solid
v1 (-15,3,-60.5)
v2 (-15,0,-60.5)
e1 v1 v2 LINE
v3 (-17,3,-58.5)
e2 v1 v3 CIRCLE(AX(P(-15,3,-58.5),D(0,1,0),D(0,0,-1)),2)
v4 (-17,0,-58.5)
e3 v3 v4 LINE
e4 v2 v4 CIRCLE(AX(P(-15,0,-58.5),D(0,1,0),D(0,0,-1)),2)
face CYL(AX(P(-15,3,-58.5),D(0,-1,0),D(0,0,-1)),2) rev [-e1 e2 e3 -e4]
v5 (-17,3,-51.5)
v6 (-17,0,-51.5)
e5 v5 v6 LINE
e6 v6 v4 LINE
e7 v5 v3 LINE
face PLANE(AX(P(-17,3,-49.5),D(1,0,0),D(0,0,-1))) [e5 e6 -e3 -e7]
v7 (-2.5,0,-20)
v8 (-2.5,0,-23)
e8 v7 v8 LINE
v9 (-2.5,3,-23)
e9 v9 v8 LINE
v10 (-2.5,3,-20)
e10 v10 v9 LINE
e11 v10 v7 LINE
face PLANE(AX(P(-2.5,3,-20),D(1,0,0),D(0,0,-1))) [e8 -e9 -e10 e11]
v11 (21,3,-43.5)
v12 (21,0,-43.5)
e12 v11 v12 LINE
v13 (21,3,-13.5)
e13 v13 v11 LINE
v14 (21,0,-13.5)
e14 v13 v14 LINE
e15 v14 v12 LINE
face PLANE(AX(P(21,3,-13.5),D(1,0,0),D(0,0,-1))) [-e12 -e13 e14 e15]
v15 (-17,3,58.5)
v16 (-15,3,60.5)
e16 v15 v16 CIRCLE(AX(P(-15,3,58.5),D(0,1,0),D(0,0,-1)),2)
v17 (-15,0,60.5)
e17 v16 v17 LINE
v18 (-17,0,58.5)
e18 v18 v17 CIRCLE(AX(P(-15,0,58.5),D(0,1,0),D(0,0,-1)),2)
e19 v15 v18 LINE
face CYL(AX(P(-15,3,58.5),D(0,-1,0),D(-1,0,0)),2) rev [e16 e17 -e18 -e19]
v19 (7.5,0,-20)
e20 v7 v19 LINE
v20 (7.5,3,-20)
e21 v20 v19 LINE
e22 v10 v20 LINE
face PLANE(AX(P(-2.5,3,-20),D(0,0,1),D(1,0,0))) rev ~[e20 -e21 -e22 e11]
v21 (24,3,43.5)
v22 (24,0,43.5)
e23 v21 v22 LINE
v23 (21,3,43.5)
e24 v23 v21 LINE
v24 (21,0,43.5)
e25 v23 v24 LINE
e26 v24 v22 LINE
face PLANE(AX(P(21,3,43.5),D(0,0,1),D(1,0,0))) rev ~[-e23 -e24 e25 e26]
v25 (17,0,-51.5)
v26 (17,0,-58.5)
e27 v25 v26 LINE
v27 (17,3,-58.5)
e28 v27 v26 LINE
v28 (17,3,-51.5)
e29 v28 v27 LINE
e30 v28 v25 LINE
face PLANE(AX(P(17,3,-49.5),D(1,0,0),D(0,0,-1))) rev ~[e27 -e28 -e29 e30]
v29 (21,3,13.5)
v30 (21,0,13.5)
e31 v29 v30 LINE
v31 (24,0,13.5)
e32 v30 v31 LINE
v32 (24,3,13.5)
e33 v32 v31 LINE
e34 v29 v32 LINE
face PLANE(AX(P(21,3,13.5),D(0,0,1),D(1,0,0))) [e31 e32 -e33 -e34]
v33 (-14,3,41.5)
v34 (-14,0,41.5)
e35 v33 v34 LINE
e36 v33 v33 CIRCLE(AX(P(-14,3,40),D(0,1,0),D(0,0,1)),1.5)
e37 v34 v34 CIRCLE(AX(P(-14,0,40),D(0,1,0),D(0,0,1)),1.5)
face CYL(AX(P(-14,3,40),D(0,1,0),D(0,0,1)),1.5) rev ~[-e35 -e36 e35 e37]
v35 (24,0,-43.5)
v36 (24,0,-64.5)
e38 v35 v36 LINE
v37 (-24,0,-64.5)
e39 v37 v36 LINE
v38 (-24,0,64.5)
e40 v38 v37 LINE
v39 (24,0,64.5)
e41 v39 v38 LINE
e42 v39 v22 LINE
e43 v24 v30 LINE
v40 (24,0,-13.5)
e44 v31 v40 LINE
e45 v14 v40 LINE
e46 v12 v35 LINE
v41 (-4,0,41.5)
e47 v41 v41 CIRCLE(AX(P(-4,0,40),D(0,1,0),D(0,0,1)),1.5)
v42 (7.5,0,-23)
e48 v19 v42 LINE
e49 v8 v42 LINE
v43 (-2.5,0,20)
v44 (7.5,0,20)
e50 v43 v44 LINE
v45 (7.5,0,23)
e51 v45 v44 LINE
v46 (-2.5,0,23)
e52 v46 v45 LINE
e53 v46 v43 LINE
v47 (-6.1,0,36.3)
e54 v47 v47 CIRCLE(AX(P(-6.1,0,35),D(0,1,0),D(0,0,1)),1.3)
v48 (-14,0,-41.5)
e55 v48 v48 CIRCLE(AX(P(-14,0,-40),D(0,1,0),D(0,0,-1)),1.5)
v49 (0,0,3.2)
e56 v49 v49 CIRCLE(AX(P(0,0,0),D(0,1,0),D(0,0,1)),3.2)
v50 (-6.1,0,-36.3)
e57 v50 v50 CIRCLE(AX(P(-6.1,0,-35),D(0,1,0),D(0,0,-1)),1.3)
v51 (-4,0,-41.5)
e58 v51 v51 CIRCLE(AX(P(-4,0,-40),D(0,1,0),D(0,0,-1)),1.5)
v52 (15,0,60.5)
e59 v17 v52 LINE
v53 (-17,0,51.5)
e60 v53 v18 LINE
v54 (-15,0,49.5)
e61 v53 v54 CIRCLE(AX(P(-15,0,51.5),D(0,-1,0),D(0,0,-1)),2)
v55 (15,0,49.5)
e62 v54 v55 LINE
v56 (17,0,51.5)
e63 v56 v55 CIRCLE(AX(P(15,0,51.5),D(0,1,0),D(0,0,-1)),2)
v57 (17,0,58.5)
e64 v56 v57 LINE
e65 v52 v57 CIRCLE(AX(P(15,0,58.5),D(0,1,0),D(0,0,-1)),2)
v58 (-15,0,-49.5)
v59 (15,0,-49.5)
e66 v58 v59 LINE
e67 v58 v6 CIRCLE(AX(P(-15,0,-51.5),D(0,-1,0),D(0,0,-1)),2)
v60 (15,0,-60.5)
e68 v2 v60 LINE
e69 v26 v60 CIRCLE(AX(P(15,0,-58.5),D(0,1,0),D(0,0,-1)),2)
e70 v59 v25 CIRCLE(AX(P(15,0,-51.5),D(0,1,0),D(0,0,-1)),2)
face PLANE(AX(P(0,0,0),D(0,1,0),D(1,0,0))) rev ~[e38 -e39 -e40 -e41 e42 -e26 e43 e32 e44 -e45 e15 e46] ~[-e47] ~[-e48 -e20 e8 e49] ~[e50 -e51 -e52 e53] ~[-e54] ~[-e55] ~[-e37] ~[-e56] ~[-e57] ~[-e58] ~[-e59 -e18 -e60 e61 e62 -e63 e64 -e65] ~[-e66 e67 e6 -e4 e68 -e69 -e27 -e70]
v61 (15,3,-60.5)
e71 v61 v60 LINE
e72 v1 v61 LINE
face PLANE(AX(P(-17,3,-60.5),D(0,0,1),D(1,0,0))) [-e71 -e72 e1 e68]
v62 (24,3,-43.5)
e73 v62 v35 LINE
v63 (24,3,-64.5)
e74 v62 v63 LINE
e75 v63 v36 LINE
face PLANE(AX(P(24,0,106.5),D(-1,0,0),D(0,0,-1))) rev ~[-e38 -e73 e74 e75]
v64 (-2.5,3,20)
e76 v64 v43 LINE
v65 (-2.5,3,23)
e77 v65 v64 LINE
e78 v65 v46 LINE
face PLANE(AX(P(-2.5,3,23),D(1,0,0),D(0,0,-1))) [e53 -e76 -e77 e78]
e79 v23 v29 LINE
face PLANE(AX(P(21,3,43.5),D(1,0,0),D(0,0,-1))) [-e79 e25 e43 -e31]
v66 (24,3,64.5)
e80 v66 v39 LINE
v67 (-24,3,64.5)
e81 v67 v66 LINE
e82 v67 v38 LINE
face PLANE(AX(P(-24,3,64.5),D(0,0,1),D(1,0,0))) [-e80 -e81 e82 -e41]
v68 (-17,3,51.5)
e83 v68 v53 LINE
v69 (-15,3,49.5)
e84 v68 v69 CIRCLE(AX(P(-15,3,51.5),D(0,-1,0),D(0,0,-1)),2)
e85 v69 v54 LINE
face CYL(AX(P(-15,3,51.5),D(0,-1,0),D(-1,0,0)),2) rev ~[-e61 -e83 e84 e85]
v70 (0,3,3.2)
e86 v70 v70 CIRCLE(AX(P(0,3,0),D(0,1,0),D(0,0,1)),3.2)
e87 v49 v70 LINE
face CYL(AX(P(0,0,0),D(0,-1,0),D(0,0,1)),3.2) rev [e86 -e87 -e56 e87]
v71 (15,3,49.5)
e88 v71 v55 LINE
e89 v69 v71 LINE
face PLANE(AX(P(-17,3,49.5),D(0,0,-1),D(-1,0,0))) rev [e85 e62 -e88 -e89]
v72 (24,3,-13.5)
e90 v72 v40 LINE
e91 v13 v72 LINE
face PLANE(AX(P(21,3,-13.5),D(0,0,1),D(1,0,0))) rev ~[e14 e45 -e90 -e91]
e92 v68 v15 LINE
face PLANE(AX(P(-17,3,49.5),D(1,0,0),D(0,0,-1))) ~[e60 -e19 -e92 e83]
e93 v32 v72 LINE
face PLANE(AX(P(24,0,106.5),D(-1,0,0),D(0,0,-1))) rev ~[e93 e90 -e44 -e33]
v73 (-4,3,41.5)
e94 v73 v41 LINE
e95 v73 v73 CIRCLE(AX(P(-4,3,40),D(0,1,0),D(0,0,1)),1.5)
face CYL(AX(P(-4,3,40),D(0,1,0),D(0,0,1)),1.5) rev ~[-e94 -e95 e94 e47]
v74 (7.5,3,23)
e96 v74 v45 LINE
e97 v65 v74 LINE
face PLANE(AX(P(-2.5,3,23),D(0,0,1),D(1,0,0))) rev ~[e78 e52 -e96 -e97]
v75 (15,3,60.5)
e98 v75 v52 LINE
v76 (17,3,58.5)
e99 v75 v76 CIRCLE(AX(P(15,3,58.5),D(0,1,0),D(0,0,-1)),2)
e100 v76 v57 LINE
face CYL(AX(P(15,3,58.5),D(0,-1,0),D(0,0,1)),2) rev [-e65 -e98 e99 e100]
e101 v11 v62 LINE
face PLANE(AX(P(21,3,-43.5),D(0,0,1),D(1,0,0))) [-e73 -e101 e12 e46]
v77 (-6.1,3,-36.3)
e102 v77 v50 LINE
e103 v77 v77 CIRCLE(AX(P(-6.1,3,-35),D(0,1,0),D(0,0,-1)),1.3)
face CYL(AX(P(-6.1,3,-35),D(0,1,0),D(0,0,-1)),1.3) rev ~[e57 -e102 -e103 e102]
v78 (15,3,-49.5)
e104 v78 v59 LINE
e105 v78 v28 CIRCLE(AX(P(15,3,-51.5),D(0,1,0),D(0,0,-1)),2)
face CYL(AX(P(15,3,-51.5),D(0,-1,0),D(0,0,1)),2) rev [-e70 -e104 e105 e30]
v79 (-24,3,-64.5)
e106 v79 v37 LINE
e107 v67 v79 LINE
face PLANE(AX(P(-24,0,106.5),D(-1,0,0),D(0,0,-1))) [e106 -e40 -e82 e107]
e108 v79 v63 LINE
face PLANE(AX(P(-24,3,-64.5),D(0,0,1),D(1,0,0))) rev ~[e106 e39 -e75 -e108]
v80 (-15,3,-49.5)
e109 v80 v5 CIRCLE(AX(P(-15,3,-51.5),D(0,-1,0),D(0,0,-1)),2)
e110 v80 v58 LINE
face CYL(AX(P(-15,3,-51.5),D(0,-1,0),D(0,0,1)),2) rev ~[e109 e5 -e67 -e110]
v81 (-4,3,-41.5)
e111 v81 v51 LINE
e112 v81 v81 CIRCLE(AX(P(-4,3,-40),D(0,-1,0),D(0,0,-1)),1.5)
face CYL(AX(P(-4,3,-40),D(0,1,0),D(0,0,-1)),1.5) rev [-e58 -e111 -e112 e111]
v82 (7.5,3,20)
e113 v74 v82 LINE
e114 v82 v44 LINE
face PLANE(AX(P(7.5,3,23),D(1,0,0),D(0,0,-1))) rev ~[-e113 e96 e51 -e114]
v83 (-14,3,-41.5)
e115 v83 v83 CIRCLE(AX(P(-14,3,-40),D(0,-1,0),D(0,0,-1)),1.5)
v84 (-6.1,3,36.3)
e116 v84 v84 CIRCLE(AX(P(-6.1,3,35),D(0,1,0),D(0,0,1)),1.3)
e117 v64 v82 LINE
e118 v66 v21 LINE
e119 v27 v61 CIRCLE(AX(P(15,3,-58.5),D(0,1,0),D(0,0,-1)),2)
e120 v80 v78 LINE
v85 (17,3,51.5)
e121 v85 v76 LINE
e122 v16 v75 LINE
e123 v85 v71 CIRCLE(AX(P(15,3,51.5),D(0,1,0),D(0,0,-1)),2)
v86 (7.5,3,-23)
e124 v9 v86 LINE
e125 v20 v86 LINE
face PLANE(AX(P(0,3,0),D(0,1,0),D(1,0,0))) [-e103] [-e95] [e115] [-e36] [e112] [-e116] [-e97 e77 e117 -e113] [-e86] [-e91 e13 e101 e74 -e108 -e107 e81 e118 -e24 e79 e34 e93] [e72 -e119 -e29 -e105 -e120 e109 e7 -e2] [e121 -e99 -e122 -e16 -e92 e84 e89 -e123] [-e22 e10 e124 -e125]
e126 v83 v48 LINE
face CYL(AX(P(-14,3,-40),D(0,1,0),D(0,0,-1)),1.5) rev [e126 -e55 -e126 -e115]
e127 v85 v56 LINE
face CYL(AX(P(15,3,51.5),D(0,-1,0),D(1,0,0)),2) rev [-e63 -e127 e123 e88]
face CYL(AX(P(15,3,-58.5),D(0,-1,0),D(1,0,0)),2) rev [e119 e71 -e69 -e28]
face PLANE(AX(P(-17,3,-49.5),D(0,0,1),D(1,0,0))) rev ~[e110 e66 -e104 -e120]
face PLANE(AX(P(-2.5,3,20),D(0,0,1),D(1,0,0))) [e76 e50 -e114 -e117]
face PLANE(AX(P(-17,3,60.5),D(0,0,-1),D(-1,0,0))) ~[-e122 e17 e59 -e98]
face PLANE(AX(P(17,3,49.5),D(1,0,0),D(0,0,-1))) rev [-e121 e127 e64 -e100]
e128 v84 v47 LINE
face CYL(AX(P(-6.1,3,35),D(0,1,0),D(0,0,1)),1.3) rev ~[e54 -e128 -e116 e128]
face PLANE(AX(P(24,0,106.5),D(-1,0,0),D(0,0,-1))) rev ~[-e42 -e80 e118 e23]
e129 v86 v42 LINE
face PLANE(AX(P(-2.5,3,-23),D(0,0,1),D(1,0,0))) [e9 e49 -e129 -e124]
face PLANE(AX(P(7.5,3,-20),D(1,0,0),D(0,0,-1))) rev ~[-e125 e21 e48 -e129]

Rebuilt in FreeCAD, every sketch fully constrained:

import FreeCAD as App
import Part
import Sketcher
from FreeCAD import Vector
Q = App.Units.Quantity


def edges_at(feature, points):
    """Names of the edges that pass closest to the given points."""
    edges = feature.Shape.Edges
    near = lambda p: min(range(len(edges)), key=lambda i: edges[i].distToShape(Part.Vertex(*p))[0])
    return sorted({f"Edge{near(p) + 1}" for p in points})


def add_polygon(sketch, points):
    """Adds a closed chain of lines whose ends are joined by coincident constraints."""
    first, n = sketch.GeometryCount, len(points)
    for a, b in zip(points, points[1:] + points[:1]):
        sketch.addGeometry(Part.LineSegment(App.Vector(*a, 0), App.Vector(*b, 0)), False)
    for i in range(n):
        sketch.addConstraint(Sketcher.Constraint("Coincident", first + i, 2, first + (i + 1) % n, 1))

doc = App.newDocument("Part")
body = doc.addObject("PartDesign::Body", "Body")

# Sketch on XZ plane
sketch1 = body.newObject("Sketcher::SketchObject", "Sketch")
sketch1.AttachmentSupport = (doc.getObject("XZ_Plane"), [""])
sketch1.MapMode = "FlatFace"
add_polygon(sketch1, [(-24, -106.5), (-24, 106.5), (24, 106.5), (24, -106.5)])  # lines 0-3
sketch1.addGeometry(Part.Circle(Vector(0, 0, 0), Vector(0, 0, 1), 3.2), False)  # 4
sketch1.addConstraint([
    Sketcher.Constraint("Vertical", 0),
    Sketcher.Constraint("Horizontal", 1),
    Sketcher.Constraint("Vertical", 2),
    Sketcher.Constraint("Horizontal", 3),
    Sketcher.Constraint("Coincident", 4, 3, -1, 1),
    Sketcher.Constraint("Symmetric", 0, 2, 2, 2, -1, 1),
    Sketcher.Constraint("Diameter", 4, Q("6.4 mm")),
    Sketcher.Constraint("DistanceX", 1, 1, 1, 2, Q("48 mm")),
    Sketcher.Constraint("DistanceY", 0, 1, 0, 2, Q("213 mm")),
])
pad1 = body.newObject("PartDesign::Pad", "Pad")
pad1.Profile = sketch1
pad1.Length = 3
pad1.Reversed = True

# Sketch on XZ plane
sketch2 = body.newObject("Sketcher::SketchObject", "Sketch001")
sketch2.AttachmentSupport = (doc.getObject("XZ_Plane"), [""])
sketch2.MapMode = "FlatFace"
sketch2.AttachmentOffset = App.Placement(Vector(0, 0, -3), App.Rotation())
add_polygon(sketch2, [(21, -85.5), (21, -64.5), (24, -64.5), (24, -85.5)])  # lines 0-3
add_polygon(sketch2, [(21, -43.5), (21, -13.5), (24, -13.5), (24, -43.5)])  # lines 4-7
add_polygon(sketch2, [(21, 13.5), (21, 43.5), (24, 43.5), (24, 13.5)])  # lines 8-11
add_polygon(sketch2, [(21, 64.5), (21, 85.5), (24, 85.5), (24, 64.5)])  # lines 12-15
sketch2.addConstraint([
    Sketcher.Constraint("Vertical", 0),
    Sketcher.Constraint("Horizontal", 1),
    Sketcher.Constraint("Vertical", 2),
    Sketcher.Constraint("Horizontal", 3),
    Sketcher.Constraint("Vertical", 4),
    Sketcher.Constraint("Horizontal", 5),
    Sketcher.Constraint("Vertical", 6),
    Sketcher.Constraint("Horizontal", 7),
    Sketcher.Constraint("Vertical", 8),
    Sketcher.Constraint("Horizontal", 9),
    Sketcher.Constraint("Vertical", 10),
    Sketcher.Constraint("Horizontal", 11),
    Sketcher.Constraint("Vertical", 12),
    Sketcher.Constraint("Horizontal", 13),
    Sketcher.Constraint("Vertical", 14),
    Sketcher.Constraint("Horizontal", 15),
    Sketcher.Constraint("Symmetric", 7, 2, 8, 2, -1),
    Sketcher.Constraint("Symmetric", 5, 2, 10, 2, -1),
    Sketcher.Constraint("Symmetric", 3, 2, 12, 2, -1),
    Sketcher.Constraint("Symmetric", 1, 2, 14, 2, -1),
    Sketcher.Constraint("Vertical", 3, 2, 4, 2),
    Sketcher.Constraint("Vertical", 2, 2, 5, 2),
    Sketcher.Constraint("DistanceX", 1, 1, 1, 2, Q("3 mm")),
    Sketcher.Constraint("DistanceY", 0, 1, 0, 2, Q("21 mm")),
    Sketcher.Constraint("DistanceY", 4, 1, 4, 2, Q("30 mm")),
    Sketcher.Constraint("DistanceX", -1, 1, 0, 2, Q("21 mm")),
    Sketcher.Constraint("DistanceY", 0, 2, 4, 2, Q("51 mm")),
    Sketcher.Constraint("DistanceY", 4, 2, 8, 2, Q("57 mm")),
])
pocket1 = body.newObject("PartDesign::Pocket", "Pocket")
pocket1.Profile = sketch2
pocket1.Type = "ThroughAll"
pocket1.Reversed = True

# Sketch on XZ plane
sketch3 = body.newObject("Sketcher::SketchObject", "Sketch002")
sketch3.AttachmentSupport = (doc.getObject("XZ_Plane"), [""])
sketch3.MapMode = "FlatFace"
sketch3.AttachmentOffset = App.Placement(Vector(0, 0, -3), App.Rotation())
add_polygon(sketch3, [(-2.5, 20), (-2.5, 23), (7.5, 23), (7.5, 20)])  # lines 0-3
add_polygon(sketch3, [(-2.5, -23), (-2.5, -20), (7.5, -20), (7.5, -23)])  # lines 4-7
sketch3.addConstraint([
    Sketcher.Constraint("Vertical", 0),
    Sketcher.Constraint("Horizontal", 1),
    Sketcher.Constraint("Vertical", 2),
    Sketcher.Constraint("Horizontal", 3),
    Sketcher.Constraint("Vertical", 4),
    Sketcher.Constraint("Horizontal", 5),
    Sketcher.Constraint("Vertical", 6),
    Sketcher.Constraint("Horizontal", 7),
    Sketcher.Constraint("Symmetric", 3, 2, 4, 2, -1),
    Sketcher.Constraint("Symmetric", 1, 2, 6, 2, -1),
    Sketcher.Constraint("DistanceX", 1, 1, 1, 2, Q("10 mm")),
    Sketcher.Constraint("DistanceY", 0, 1, 0, 2, Q("3 mm")),
    Sketcher.Constraint("DistanceY", -1, 1, 0, 2, Q("23 mm")),
    Sketcher.Constraint("DistanceX", 0, 2, -1, 1, Q("2.5 mm")),
])
pocket2 = body.newObject("PartDesign::Pocket", "Pocket001")
pocket2.Profile = sketch3
pocket2.Type = "ThroughAll"
pocket2.Reversed = True

# Sketch on XZ plane
sketch4 = body.newObject("Sketcher::SketchObject", "Sketch003")
sketch4.AttachmentSupport = (doc.getObject("XZ_Plane"), [""])
sketch4.MapMode = "FlatFace"
sketch4.AttachmentOffset = App.Placement(Vector(0, 0, -3), App.Rotation())
sketch4.addGeometry([
    Part.Circle(Vector(-6.1, 35, 0), Vector(0, 0, 1), 1.3),
    Part.Circle(Vector(-6.1, -35, 0), Vector(0, 0, 1), 1.3),
], False)
sketch4.addConstraint([
    Sketcher.Constraint("Equal", 0, 1),
    Sketcher.Constraint("Symmetric", 0, 3, 1, 3, -1),
    Sketcher.Constraint("Diameter", 0, Q("2.6 mm")),
    Sketcher.Constraint("DistanceY", -1, 1, 0, 3, Q("35 mm")),
    Sketcher.Constraint("DistanceX", 0, 3, -1, 1, Q("6.1 mm")),
])
pocket3 = body.newObject("PartDesign::Pocket", "Pocket002")
pocket3.Profile = sketch4
pocket3.Type = "ThroughAll"
pocket3.Reversed = True

# Sketch on XZ plane
sketch5 = body.newObject("Sketcher::SketchObject", "Sketch004")
sketch5.AttachmentSupport = (doc.getObject("XZ_Plane"), [""])
sketch5.MapMode = "FlatFace"
sketch5.AttachmentOffset = App.Placement(Vector(0, 0, -3), App.Rotation())
add_polygon(sketch5, [(-24, -106.5), (-24, -64.5), (24, -64.5), (24, -106.5)])  # lines 0-3
add_polygon(sketch5, [(-24, 64.5), (-24, 106.5), (24, 106.5), (24, 64.5)])  # lines 4-7
sketch5.addConstraint([
    Sketcher.Constraint("Vertical", 0),
    Sketcher.Constraint("Horizontal", 1),
    Sketcher.Constraint("Vertical", 2),
    Sketcher.Constraint("Horizontal", 3),
    Sketcher.Constraint("Vertical", 4),
    Sketcher.Constraint("Horizontal", 5),
    Sketcher.Constraint("Vertical", 6),
    Sketcher.Constraint("Horizontal", 7),
    Sketcher.Constraint("Symmetric", 2, 2, 4, 2, -1, 1),
    Sketcher.Constraint("Symmetric", 0, 2, 6, 2, -1, 1),
    Sketcher.Constraint("Vertical", 3, 2, 4, 2),
    Sketcher.Constraint("DistanceX", 1, 1, 1, 2, Q("48 mm")),
    Sketcher.Constraint("DistanceY", 0, 1, 0, 2, Q("42 mm")),
    Sketcher.Constraint("DistanceY", 0, 2, 4, 2, Q("171 mm")),
])
pocket4 = body.newObject("PartDesign::Pocket", "Pocket003")
pocket4.Profile = sketch5
pocket4.Type = "ThroughAll"
pocket4.Reversed = True

# Sketch on XZ plane
sketch6 = body.newObject("Sketcher::SketchObject", "Sketch005")
sketch6.AttachmentSupport = (doc.getObject("XZ_Plane"), [""])
sketch6.MapMode = "FlatFace"
sketch6.AttachmentOffset = App.Placement(Vector(0, 0, -3), App.Rotation())
add_polygon(sketch6, [(-17, -60.5), (-17, -49.5), (17, -49.5), (17, -60.5)])  # lines 0-3
sketch6.addConstraint([
    Sketcher.Constraint("Vertical", 0),
    Sketcher.Constraint("Horizontal", 1),
    Sketcher.Constraint("Vertical", 2),
    Sketcher.Constraint("Horizontal", 3),
    Sketcher.Constraint("DistanceX", 1, 1, 1, 2, Q("34 mm")),
    Sketcher.Constraint("DistanceY", 0, 1, 0, 2, Q("11 mm")),
    Sketcher.Constraint("DistanceX", 0, 2, -1, 1, Q("17 mm")),
    Sketcher.Constraint("DistanceY", 0, 2, -1, 1, Q("49.5 mm")),
])
pocket5 = body.newObject("PartDesign::Pocket", "Pocket004")
pocket5.Profile = sketch6
pocket5.Type = "ThroughAll"
pocket5.Reversed = True
doc.recompute()

fillet = body.newObject("PartDesign::Fillet", "Fillet")
fillet.Base = (pocket5, edges_at(pocket5, [
    (-17, 1.5, -49.5),
    (-17, 1.5, -60.5),
    (17, 1.5, -60.5),
    (17, 1.5, -49.5),
]))
fillet.Radius = 2
doc.recompute()

mirrored = body.newObject("PartDesign::Mirrored", "Mirrored")
mirrored.Originals = [pocket5]
mirrored.MirrorPlane = (doc.getObject("XY_Plane"), [""])
body.Tip = mirrored
doc.recompute()

fillet2 = body.newObject("PartDesign::Fillet", "Fillet001")
fillet2.Base = (mirrored, edges_at(mirrored, [
    (-17, 1.5, 49.5),
    (-17, 1.5, 60.5),
    (17, 1.5, 60.5),
    (17, 1.5, 49.5),
]))
fillet2.Radius = 2

# Sketch on XZ plane
sketch7 = body.newObject("Sketcher::SketchObject", "Sketch006")
sketch7.AttachmentSupport = (doc.getObject("XZ_Plane"), [""])
sketch7.MapMode = "FlatFace"
sketch7.AttachmentOffset = App.Placement(Vector(0, 0, -3), App.Rotation())
sketch7.addGeometry([
    Part.Circle(Vector(-14, 40, 0), Vector(0, 0, 1), 1.5),
    Part.Circle(Vector(-4, 40, 0), Vector(0, 0, 1), 1.5),
], False)
sketch7.addConstraint([
    Sketcher.Constraint("Equal", 0, 1),
    Sketcher.Constraint("Horizontal", 0, 3, 1, 3),
    Sketcher.Constraint("Diameter", 0, Q("3 mm")),
    Sketcher.Constraint("DistanceX", 0, 3, -1, 1, Q("14 mm")),
    Sketcher.Constraint("DistanceY", -1, 1, 0, 3, Q("40 mm")),
    Sketcher.Constraint("DistanceX", 1, 3, -1, 1, Q("4 mm")),
])
pocket6 = body.newObject("PartDesign::Pocket", "Pocket005")
pocket6.Profile = sketch7
pocket6.Type = "ThroughAll"
pocket6.Reversed = True
doc.recompute()

mirrored2 = body.newObject("PartDesign::Mirrored", "Mirrored001")
mirrored2.Originals = [pocket6]
mirrored2.MirrorPlane = (doc.getObject("XY_Plane"), [""])
body.Tip = mirrored2

doc.recompute()
